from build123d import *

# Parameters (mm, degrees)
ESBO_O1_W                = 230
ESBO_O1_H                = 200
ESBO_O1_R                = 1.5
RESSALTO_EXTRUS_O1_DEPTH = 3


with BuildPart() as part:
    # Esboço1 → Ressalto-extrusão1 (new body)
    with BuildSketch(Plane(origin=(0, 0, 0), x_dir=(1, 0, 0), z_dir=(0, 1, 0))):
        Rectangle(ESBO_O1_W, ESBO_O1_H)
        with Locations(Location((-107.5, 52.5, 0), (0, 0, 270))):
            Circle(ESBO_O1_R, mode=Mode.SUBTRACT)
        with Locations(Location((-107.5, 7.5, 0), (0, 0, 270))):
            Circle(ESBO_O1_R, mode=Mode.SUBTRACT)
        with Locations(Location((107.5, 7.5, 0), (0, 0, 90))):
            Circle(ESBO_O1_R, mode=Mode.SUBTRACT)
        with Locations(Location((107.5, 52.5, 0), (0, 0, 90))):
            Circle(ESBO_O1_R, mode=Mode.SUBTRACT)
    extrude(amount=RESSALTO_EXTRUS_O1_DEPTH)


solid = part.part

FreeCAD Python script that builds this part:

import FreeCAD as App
import Part
import Sketcher
from FreeCAD import Vector
Q = App.Units.Quantity

doc = App.newDocument("Part")
body = doc.addObject("PartDesign::Body", "Body")

# Sketch on XZ plane
sketch1 = doc.addObject("Sketcher::SketchObject", "Sketch")
body.addObject(sketch1)
sketch1.AttachmentSupport = (doc.XZ_Plane, [""])
sketch1.MapMode = "FlatFace"
sketch1.addGeometry([
    Part.LineSegment(Vector(-115, -100, 0), Vector(-115, 100, 0)),  # 0
    Part.LineSegment(Vector(-115, 100, 0), Vector(115, 100, 0)),  # 1
    Part.LineSegment(Vector(115, 100, 0), Vector(115, -100, 0)),  # 2
    Part.LineSegment(Vector(115, -100, 0), Vector(-115, -100, 0)),  # 3
    Part.Circle(Vector(-107.5, -7.5, 0), Vector(0, 0, 1), 1.5),  # 4
    Part.Circle(Vector(107.5, -7.5, 0), Vector(0, 0, 1), 1.5),  # 5
    Part.Circle(Vector(-107.5, -52.5, 0), Vector(0, 0, 1), 1.5),  # 6
    Part.Circle(Vector(107.5, -52.5, 0), Vector(0, 0, 1), 1.5),  # 7
], False)
sketch1.addConstraint([
    Sketcher.Constraint("Coincident", 0, 2, 1, 1),
    Sketcher.Constraint("Coincident", 1, 2, 2, 1),
    Sketcher.Constraint("Coincident", 2, 2, 3, 1),
    Sketcher.Constraint("Coincident", 3, 2, 0, 1),
    Sketcher.Constraint("Vertical", 0),
    Sketcher.Constraint("Horizontal", 1),
    Sketcher.Constraint("Vertical", 2),
    Sketcher.Constraint("Horizontal", 3),
    Sketcher.Constraint("Equal", 4, 5),
    Sketcher.Constraint("Equal", 5, 6),
    Sketcher.Constraint("Equal", 6, 7),
    Sketcher.Constraint("Symmetric", 0, 2, 2, 2, -1, 1),
    Sketcher.Constraint("Symmetric", 4, 3, 5, 3, -2),
    Sketcher.Constraint("Symmetric", 6, 3, 7, 3, -2),
    Sketcher.Constraint("Vertical", 4, 3, 6, 3),
    Sketcher.Constraint("Diameter", 4, Q("3 mm")),
    Sketcher.Constraint("DistanceX", 1, 1, 1, 2, Q("230 mm")),
    Sketcher.Constraint("DistanceY", 0, 1, 0, 2, Q("200 mm")),
    Sketcher.Constraint("DistanceX", 4, 3, 5, 3, Q("215 mm")),
    Sketcher.Constraint("DistanceY", 6, 3, 4, 3, Q("45 mm")),
    Sketcher.Constraint("DistanceY", 4, 3, -1, 1, Q("7.5 mm")),
])
pad1 = doc.addObject("PartDesign::Pad", "Pad")
body.addObject(pad1)
pad1.Profile = sketch1
pad1.Length = 3
pad1.Reversed = True

doc.recompute()
